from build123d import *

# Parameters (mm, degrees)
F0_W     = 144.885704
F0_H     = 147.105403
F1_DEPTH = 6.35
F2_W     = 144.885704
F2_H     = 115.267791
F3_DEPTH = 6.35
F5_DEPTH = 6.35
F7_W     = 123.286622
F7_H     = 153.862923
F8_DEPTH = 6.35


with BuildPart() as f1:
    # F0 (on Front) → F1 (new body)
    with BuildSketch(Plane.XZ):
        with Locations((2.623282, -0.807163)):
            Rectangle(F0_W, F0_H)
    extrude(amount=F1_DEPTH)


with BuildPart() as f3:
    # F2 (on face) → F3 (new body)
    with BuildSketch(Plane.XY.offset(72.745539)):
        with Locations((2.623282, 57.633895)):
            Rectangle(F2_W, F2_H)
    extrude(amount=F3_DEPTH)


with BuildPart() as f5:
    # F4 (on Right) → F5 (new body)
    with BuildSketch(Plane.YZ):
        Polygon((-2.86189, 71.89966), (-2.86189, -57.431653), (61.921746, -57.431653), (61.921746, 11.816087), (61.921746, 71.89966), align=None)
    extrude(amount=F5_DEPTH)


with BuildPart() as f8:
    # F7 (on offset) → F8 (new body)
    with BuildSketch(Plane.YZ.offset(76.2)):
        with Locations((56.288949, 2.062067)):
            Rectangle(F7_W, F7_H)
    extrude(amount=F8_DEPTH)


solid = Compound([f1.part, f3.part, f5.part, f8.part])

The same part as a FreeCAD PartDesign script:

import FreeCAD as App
import Part
import Sketcher

doc = App.newDocument("Part")
params = doc.addObject("Spreadsheet::Sheet", "Params")
for row, (alias, value) in enumerate([
    ("pad1_length", "0.25 in"),
    ("pad2_length", "0.25 in"),
    ("pad3_length", "0.25 in"),
    ("pad4_length", "0.25 in"),
], start=1):
    params.set(f"A{row}", alias)
    params.set(f"B{row}", "=" + value)
    params.setAlias(f"B{row}", alias)

body = doc.addObject("PartDesign::Body", "Body")

sketch1 = body.newObject("Sketcher::SketchObject", "Sketch")
sketch1.AttachmentSupport = (doc.getObject("XZ_Plane"), [""])
sketch1.MapMode = "FlatFace"
sketch1.addGeometry([
    Part.LineSegment(App.Vector(-70, 73, 0), App.Vector(-70, -74, 0)),
    Part.LineSegment(App.Vector(-70, -74, 0), App.Vector(75, -74, 0)),
    Part.LineSegment(App.Vector(75, -74, 0), App.Vector(75, 73, 0)),
    Part.LineSegment(App.Vector(75, 73, 0), App.Vector(-70, 73, 0)),
], False)
sketch1.addConstraint([
    Sketcher.Constraint("Coincident", 0, 2, 1, 1),
    Sketcher.Constraint("Coincident", 1, 2, 2, 1),
    Sketcher.Constraint("Coincident", 2, 2, 3, 1),
    Sketcher.Constraint("Coincident", 3, 2, 0, 1),
    Sketcher.Constraint("Vertical", 0),
    Sketcher.Constraint("Horizontal", 1),
    Sketcher.Constraint("Vertical", 2),
    Sketcher.Constraint("Horizontal", 3),
    Sketcher.Constraint("DistanceX", 1, 1, 1, 2, 144.885704),
    Sketcher.Constraint("DistanceY", 0, 2, 0, 1, 147.105403),
    Sketcher.Constraint("DistanceX", 0, 2, -1, 1, 69.81957),
    Sketcher.Constraint("DistanceY", -1, 1, 2, 2, 72.745538),
])
pad1 = body.newObject("PartDesign::Pad", "Pad")
pad1.Profile = sketch1
pad1.setExpression("Length", "Params.pad1_length")
body2 = doc.addObject("PartDesign::Body", "Body001")

sketch2 = body2.newObject("Sketcher::SketchObject", "Sketch001")
sketch2.AttachmentSupport = (doc.getObject("XY_Plane001"), [""])
sketch2.MapMode = "FlatFace"
sketch2.AttachmentOffset = App.Placement(App.Vector(0, 0, 72.745539), App.Rotation())
sketch2.addGeometry([
    Part.LineSegment(App.Vector(-70, 115, 0), App.Vector(-70, 0, 0)),
    Part.LineSegment(App.Vector(-70, 0, 0), App.Vector(75, 0, 0)),
    Part.LineSegment(App.Vector(75, 0, 0), App.Vector(75, 115, 0)),
    Part.LineSegment(App.Vector(75, 115, 0), App.Vector(-70, 115, 0)),
], False)
sketch2.addConstraint([
    Sketcher.Constraint("Coincident", 0, 2, 1, 1),
    Sketcher.Constraint("Coincident", 1, 2, 2, 1),
    Sketcher.Constraint("Coincident", 2, 2, 3, 1),
    Sketcher.Constraint("Coincident", 3, 2, 0, 1),
    Sketcher.Constraint("Vertical", 0),
    Sketcher.Constraint("Horizontal", 1),
    Sketcher.Constraint("Vertical", 2),
    Sketcher.Constraint("Horizontal", 3),
    Sketcher.Constraint("PointOnObject", 0, 2, -1),
    Sketcher.Constraint("DistanceY", 0, 2, 0, 1, 115.267791),
    Sketcher.Constraint("DistanceX", 1, 1, 1, 2, 144.885704),
    Sketcher.Constraint("DistanceX", 0, 2, -1, 1, 69.81957),
])
pad2 = body2.newObject("PartDesign::Pad", "Pad001")
pad2.Profile = sketch2
pad2.setExpression("Length", "Params.pad2_length")
body3 = doc.addObject("PartDesign::Body", "Body002")

sketch3 = body3.newObject("Sketcher::SketchObject", "Sketch002")
sketch3.AttachmentSupport = (doc.getObject("YZ_Plane002"), [""])
sketch3.MapMode = "FlatFace"
sketch3.addGeometry([
    Part.LineSegment(App.Vector(-3, 72, 0), App.Vector(-3, -57, 0)),
    Part.LineSegment(App.Vector(-3, -57, 0), App.Vector(62, -57, 0)),
    Part.LineSegment(App.Vector(62, -57, 0), App.Vector(62, 72, 0)),
    Part.LineSegment(App.Vector(62, 72, 0), App.Vector(-3, 72, 0)),
], False)
sketch3.addConstraint([
    Sketcher.Constraint("Coincident", 0, 2, 1, 1),
    Sketcher.Constraint("Coincident", 1, 2, 2, 1),
    Sketcher.Constraint("Coincident", 2, 2, 3, 1),
    Sketcher.Constraint("Coincident", 3, 2, 0, 1),
    Sketcher.Constraint("Vertical", 0),
    Sketcher.Constraint("Horizontal", 1),
    Sketcher.Constraint("Vertical", 2),
    Sketcher.Constraint("Horizontal", 3),
    Sketcher.Constraint("DistanceX", 1, 1, 1, 2, 64.783636),
    Sketcher.Constraint("DistanceY", 0, 2, 0, 1, 129.331313),
    Sketcher.Constraint("DistanceX", 0, 2, -1, 1, 2.86189),
    Sketcher.Constraint("DistanceY", -1, 1, 2, 2, 71.89966),
])
pad3 = body3.newObject("PartDesign::Pad", "Pad002")
pad3.Profile = sketch3
pad3.setExpression("Length", "Params.pad3_length")
body4 = doc.addObject("PartDesign::Body", "Body003")

sketch4 = body4.newObject("Sketcher::SketchObject", "Sketch003")
sketch4.AttachmentSupport = (doc.getObject("YZ_Plane003"), [""])
sketch4.MapMode = "FlatFace"
sketch4.AttachmentOffset = App.Placement(App.Vector(0, 0, 3 * 25.4), App.Rotation())
sketch4.addGeometry([
    Part.LineSegment(App.Vector(-5, 79, 0), App.Vector(-5, -75, 0)),
    Part.LineSegment(App.Vector(-5, -75, 0), App.Vector(118, -75, 0)),
    Part.LineSegment(App.Vector(118, -75, 0), App.Vector(118, 79, 0)),
    Part.LineSegment(App.Vector(118, 79, 0), App.Vector(-5, 79, 0)),
], False)
sketch4.addConstraint([
    Sketcher.Constraint("Coincident", 0, 2, 1, 1),
    Sketcher.Constraint("Coincident", 1, 2, 2, 1),
    Sketcher.Constraint("Coincident", 2, 2, 3, 1),
    Sketcher.Constraint("Coincident", 3, 2, 0, 1),
    Sketcher.Constraint("Vertical", 0),
    Sketcher.Constraint("Horizontal", 1),
    Sketcher.Constraint("Vertical", 2),
    Sketcher.Constraint("Horizontal", 3),
    Sketcher.Constraint("DistanceX", 1, 1, 1, 2, 123.286622),
    Sketcher.Constraint("DistanceY", 0, 2, 0, 1, 153.862923),
    Sketcher.Constraint("DistanceX", -1, 1, 1, 2, 117.93226),
    Sketcher.Constraint("DistanceY", -1, 1, 2, 2, 78.993528),
])
pad4 = body4.newObject("PartDesign::Pad", "Pad003")
pad4.Profile = sketch4
pad4.setExpression("Length", "Params.pad4_length")

doc.recompute()
